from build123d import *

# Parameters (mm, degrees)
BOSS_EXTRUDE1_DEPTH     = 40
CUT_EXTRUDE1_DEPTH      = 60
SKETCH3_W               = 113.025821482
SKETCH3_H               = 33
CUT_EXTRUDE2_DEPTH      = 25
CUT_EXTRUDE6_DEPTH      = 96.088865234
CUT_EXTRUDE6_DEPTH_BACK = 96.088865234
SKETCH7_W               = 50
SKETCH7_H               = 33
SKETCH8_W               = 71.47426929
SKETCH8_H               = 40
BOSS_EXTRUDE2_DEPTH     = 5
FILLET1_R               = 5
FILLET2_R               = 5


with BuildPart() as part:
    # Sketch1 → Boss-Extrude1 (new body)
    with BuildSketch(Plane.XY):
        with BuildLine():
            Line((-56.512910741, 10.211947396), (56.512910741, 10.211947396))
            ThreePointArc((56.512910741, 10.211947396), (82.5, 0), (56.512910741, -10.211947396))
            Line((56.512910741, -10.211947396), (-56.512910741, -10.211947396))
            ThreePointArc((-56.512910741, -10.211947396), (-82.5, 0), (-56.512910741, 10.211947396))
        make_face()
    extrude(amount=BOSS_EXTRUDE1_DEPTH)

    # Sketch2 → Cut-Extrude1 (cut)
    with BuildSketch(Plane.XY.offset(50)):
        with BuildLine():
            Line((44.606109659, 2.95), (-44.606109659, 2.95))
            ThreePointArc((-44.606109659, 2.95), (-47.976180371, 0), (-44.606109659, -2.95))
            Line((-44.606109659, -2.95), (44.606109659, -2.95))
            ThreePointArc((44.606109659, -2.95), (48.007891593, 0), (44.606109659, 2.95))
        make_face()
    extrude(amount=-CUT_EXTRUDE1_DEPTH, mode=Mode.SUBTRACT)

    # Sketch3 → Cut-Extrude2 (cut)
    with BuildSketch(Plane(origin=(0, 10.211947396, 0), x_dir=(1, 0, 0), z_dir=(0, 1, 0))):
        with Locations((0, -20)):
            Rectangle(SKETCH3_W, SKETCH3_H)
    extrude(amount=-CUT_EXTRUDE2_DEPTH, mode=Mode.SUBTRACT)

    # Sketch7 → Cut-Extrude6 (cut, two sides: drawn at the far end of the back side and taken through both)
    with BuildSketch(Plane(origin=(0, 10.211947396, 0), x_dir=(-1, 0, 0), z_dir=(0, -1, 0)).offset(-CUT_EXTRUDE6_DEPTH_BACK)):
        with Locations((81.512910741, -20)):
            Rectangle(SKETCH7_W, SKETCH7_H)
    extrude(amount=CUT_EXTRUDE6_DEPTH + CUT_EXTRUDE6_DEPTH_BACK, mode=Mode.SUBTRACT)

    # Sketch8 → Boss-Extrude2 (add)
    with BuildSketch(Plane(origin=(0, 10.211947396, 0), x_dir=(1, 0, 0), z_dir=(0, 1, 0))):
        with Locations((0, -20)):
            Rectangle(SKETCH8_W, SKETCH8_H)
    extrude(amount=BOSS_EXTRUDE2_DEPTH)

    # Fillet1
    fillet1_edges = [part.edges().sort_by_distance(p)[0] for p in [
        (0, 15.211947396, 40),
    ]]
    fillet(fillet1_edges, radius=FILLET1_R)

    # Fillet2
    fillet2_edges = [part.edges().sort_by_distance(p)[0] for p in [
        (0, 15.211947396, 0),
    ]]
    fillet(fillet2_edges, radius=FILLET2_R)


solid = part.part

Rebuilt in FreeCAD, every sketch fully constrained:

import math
import FreeCAD as App
import Part
import Sketcher

V = App.Vector


def edges_at(feature, points):
    """Names of the edges that pass closest to the given points."""
    edges = feature.Shape.Edges
    near = lambda p: min(range(len(edges)), key=lambda i: edges[i].distToShape(Part.Vertex(*p))[0])
    return sorted({f"Edge{near(p) + 1}" for p in points})

doc = App.newDocument("Part")
body = doc.addObject("PartDesign::Body", "Body")

# Sketch on XY plane
sketch1 = doc.addObject("Sketcher::SketchObject", "Sketch")
body.addObject(sketch1)
sketch1.AttachmentSupport = (doc.XY_Plane, [""])
sketch1.MapMode = "FlatFace"
sketch1.addGeometry([
    Part.LineSegment(V(57, 10, 0), V(-57, 10, 0)),
    Part.ArcOfCircle(Part.Circle(V(-68, 0, 0), V(0, 0, 1), 15), math.radians(43), math.radians(317)),
    Part.LineSegment(V(-57, -10, 0), V(57, -10, 0)),
    Part.ArcOfCircle(Part.Circle(V(68, 0, 0), V(0, 0, 1), 15), math.radians(-137), math.radians(137)),
], False)
sketch1.addConstraint([
    Sketcher.Constraint("Coincident", 0, 2, 1, 1),
    Sketcher.Constraint("Coincident", 1, 2, 2, 1),
    Sketcher.Constraint("Coincident", 2, 2, 3, 1),
    Sketcher.Constraint("Coincident", 3, 2, 0, 1),
    Sketcher.Constraint("Horizontal", 0),
    Sketcher.Constraint("Horizontal", 2),
    Sketcher.Constraint("Equal", 1, 3),
    Sketcher.Constraint("Symmetric", 1, 3, 3, 3, -1, 1),
    Sketcher.Constraint("Symmetric", 0, 2, 1, 2, -1),
    Sketcher.Constraint("Radius", 1, 15.0),
    Sketcher.Constraint("DistanceX", 1, 3, 3, 3, 135.0),
    Sketcher.Constraint("DistanceX", 0, 2, 0, 1, 113.025821),
])
pad1 = doc.addObject("PartDesign::Pad", "Pad")
body.addObject(pad1)
pad1.Profile = sketch1
pad1.Length = 40

# Sketch on XY plane
sketch2 = doc.addObject("Sketcher::SketchObject", "Sketch001")
body.addObject(sketch2)
sketch2.AttachmentSupport = (doc.XY_Plane, [""])
sketch2.MapMode = "FlatFace"
sketch2.AttachmentOffset = App.Placement(V(0, 0, 50), App.Rotation())
sketch2.addGeometry([
    Part.LineSegment(V(44.6, 3, 0), V(-44.6, 3, 0)),
    Part.ArcOfCircle(Part.Circle(V(-45, 0, 0), V(0, 0, 1), 3), math.radians(82), math.radians(278)),
    Part.LineSegment(V(-44.6, -3, 0), V(44.6, -3, 0)),
    Part.ArcOfCircle(Part.Circle(V(45, 0, 0), V(0, 0, 1), 3), math.radians(-98), math.radians(98)),
], False)
sketch2.addConstraint([
    Sketcher.Constraint("Coincident", 0, 2, 1, 1),
    Sketcher.Constraint("Coincident", 1, 2, 2, 1),
    Sketcher.Constraint("Coincident", 2, 2, 3, 1),
    Sketcher.Constraint("Coincident", 3, 2, 0, 1),
    Sketcher.Constraint("Horizontal", 0),
    Sketcher.Constraint("Horizontal", 2),
    Sketcher.Constraint("Symmetric", 0, 2, 2, 2, -1, 1),
    Sketcher.Constraint("PointOnObject", 1, 3, -1),
    Sketcher.Constraint("PointOnObject", 3, 3, -1),
    Sketcher.Constraint("Radius", 3, 2.98),
    Sketcher.Constraint("DistanceX", 1, 3, -1, 1, 45.0),
    Sketcher.Constraint("DistanceY", 1, 2, 0, 2, 5.9),
    Sketcher.Constraint("Radius", 1, 2.97618),
])
pocket1 = doc.addObject("PartDesign::Pocket", "Pocket")
body.addObject(pocket1)
pocket1.Profile = sketch2
pocket1.Length = 60

# Sketch on XZ plane
sketch3 = doc.addObject("Sketcher::SketchObject", "Sketch002")
body.addObject(sketch3)
sketch3.AttachmentSupport = (doc.XZ_Plane, [""])
sketch3.MapMode = "FlatFace"
sketch3.AttachmentOffset = App.Placement(V(0, 0, -10.211947), App.Rotation())
sketch3.addGeometry([
    Part.LineSegment(V(-57, 4, 0), V(-57, 36, 0)),
    Part.LineSegment(V(-57, 36, 0), V(57, 36, 0)),
    Part.LineSegment(V(57, 36, 0), V(57, 4, 0)),
    Part.LineSegment(V(57, 4, 0), V(-57, 4, 0)),
], False)
sketch3.addConstraint([
    Sketcher.Constraint("Coincident", 0, 2, 1, 1),
    Sketcher.Constraint("Coincident", 1, 2, 2, 1),
    Sketcher.Constraint("Coincident", 2, 2, 3, 1),
    Sketcher.Constraint("Coincident", 3, 2, 0, 1),
    Sketcher.Constraint("Vertical", 0),
    Sketcher.Constraint("Horizontal", 1),
    Sketcher.Constraint("Vertical", 2),
    Sketcher.Constraint("Horizontal", 3),
    Sketcher.Constraint("DistanceY", 0, 1, 0, 2, 33.0),
    Sketcher.Constraint("DistanceY", -1, 1, 0, 2, 36.5),
    Sketcher.Constraint("DistanceX", 1, 1, 1, 2, 113.025821),
    Sketcher.Constraint("DistanceX", 0, 2, -1, 1, 56.512911),
])
pocket2 = doc.addObject("PartDesign::Pocket", "Pocket001")
body.addObject(pocket2)
pocket2.Profile = sketch3
pocket2.Length = 25
pocket2.Reversed = True

# Sketch on XZ plane
sketch4 = doc.addObject("Sketcher::SketchObject", "Sketch003")
body.addObject(sketch4)
sketch4.AttachmentSupport = (doc.XZ_Plane, [""])
sketch4.MapMode = "FlatFace"
sketch4.AttachmentOffset = App.Placement(V(0, 0, -10.211947), App.Rotation())
sketch4.addGeometry([
    Part.LineSegment(V(-57, 4, 0), V(-57, 36, 0)),
    Part.LineSegment(V(-57, 36, 0), V(-107, 36, 0)),
    Part.LineSegment(V(-107, 36, 0), V(-107, 4, 0)),
    Part.LineSegment(V(-107, 4, 0), V(-57, 4, 0)),
], False)
sketch4.addConstraint([
    Sketcher.Constraint("Coincident", 0, 2, 1, 1),
    Sketcher.Constraint("Coincident", 1, 2, 2, 1),
    Sketcher.Constraint("Coincident", 2, 2, 3, 1),
    Sketcher.Constraint("Coincident", 3, 2, 0, 1),
    Sketcher.Constraint("Vertical", 0),
    Sketcher.Constraint("Horizontal", 1),
    Sketcher.Constraint("Vertical", 2),
    Sketcher.Constraint("Horizontal", 3),
    Sketcher.Constraint("DistanceX", 1, 2, 1, 1, 50.0),
    Sketcher.Constraint("DistanceY", 0, 1, 0, 2, 33.0),
    Sketcher.Constraint("DistanceY", -1, 1, 0, 2, 36.5),
    Sketcher.Constraint("DistanceX", 0, 2, -1, 1, 56.512911),
])
pocket3 = doc.addObject("PartDesign::Pocket", "Pocket002")
body.addObject(pocket3)
pocket3.Profile = sketch4
pocket3.Type = "ThroughAll"
pocket3.Midplane = True

# Sketch on XZ plane
sketch5 = doc.addObject("Sketcher::SketchObject", "Sketch004")
body.addObject(sketch5)
sketch5.AttachmentSupport = (doc.XZ_Plane, [""])
sketch5.MapMode = "FlatFace"
sketch5.AttachmentOffset = App.Placement(V(0, 0, -10.211947), App.Rotation())
sketch5.addGeometry([
    Part.LineSegment(V(-36, 0, 0), V(-36, 40, 0)),
    Part.LineSegment(V(-36, 40, 0), V(36, 40, 0)),
    Part.LineSegment(V(36, 40, 0), V(36, 0, 0)),
    Part.LineSegment(V(36, 0, 0), V(-36, 0, 0)),
], False)
sketch5.addConstraint([
    Sketcher.Constraint("Coincident", 0, 2, 1, 1),
    Sketcher.Constraint("Coincident", 1, 2, 2, 1),
    Sketcher.Constraint("Coincident", 2, 2, 3, 1),
    Sketcher.Constraint("Coincident", 3, 2, 0, 1),
    Sketcher.Constraint("Vertical", 0),
    Sketcher.Constraint("Horizontal", 1),
    Sketcher.Constraint("Vertical", 2),
    Sketcher.Constraint("Horizontal", 3),
    Sketcher.Constraint("Symmetric", 2, 2, 3, 2, -1, 1),
    Sketcher.Constraint("DistanceY", 0, 1, 0, 2, 40.0),
    Sketcher.Constraint("DistanceX", 1, 1, 1, 2, 71.474269),
])
pad2 = doc.addObject("PartDesign::Pad", "Pad001")
body.addObject(pad2)
pad2.Profile = sketch5
pad2.Length = 5
pad2.Reversed = True
doc.recompute()

fillet = doc.addObject("PartDesign::Fillet", "Fillet")
body.addObject(fillet)
fillet.Base = (pad2, edges_at(pad2, [(0, 15.212, 40)]))
fillet.Radius = 5
doc.recompute()

fillet2 = doc.addObject("PartDesign::Fillet", "Fillet001")
body.addObject(fillet2)
fillet2.Base = (fillet, edges_at(fillet, [(0, 15.212, 0)]))
fillet2.Radius = 5

doc.recompute()
